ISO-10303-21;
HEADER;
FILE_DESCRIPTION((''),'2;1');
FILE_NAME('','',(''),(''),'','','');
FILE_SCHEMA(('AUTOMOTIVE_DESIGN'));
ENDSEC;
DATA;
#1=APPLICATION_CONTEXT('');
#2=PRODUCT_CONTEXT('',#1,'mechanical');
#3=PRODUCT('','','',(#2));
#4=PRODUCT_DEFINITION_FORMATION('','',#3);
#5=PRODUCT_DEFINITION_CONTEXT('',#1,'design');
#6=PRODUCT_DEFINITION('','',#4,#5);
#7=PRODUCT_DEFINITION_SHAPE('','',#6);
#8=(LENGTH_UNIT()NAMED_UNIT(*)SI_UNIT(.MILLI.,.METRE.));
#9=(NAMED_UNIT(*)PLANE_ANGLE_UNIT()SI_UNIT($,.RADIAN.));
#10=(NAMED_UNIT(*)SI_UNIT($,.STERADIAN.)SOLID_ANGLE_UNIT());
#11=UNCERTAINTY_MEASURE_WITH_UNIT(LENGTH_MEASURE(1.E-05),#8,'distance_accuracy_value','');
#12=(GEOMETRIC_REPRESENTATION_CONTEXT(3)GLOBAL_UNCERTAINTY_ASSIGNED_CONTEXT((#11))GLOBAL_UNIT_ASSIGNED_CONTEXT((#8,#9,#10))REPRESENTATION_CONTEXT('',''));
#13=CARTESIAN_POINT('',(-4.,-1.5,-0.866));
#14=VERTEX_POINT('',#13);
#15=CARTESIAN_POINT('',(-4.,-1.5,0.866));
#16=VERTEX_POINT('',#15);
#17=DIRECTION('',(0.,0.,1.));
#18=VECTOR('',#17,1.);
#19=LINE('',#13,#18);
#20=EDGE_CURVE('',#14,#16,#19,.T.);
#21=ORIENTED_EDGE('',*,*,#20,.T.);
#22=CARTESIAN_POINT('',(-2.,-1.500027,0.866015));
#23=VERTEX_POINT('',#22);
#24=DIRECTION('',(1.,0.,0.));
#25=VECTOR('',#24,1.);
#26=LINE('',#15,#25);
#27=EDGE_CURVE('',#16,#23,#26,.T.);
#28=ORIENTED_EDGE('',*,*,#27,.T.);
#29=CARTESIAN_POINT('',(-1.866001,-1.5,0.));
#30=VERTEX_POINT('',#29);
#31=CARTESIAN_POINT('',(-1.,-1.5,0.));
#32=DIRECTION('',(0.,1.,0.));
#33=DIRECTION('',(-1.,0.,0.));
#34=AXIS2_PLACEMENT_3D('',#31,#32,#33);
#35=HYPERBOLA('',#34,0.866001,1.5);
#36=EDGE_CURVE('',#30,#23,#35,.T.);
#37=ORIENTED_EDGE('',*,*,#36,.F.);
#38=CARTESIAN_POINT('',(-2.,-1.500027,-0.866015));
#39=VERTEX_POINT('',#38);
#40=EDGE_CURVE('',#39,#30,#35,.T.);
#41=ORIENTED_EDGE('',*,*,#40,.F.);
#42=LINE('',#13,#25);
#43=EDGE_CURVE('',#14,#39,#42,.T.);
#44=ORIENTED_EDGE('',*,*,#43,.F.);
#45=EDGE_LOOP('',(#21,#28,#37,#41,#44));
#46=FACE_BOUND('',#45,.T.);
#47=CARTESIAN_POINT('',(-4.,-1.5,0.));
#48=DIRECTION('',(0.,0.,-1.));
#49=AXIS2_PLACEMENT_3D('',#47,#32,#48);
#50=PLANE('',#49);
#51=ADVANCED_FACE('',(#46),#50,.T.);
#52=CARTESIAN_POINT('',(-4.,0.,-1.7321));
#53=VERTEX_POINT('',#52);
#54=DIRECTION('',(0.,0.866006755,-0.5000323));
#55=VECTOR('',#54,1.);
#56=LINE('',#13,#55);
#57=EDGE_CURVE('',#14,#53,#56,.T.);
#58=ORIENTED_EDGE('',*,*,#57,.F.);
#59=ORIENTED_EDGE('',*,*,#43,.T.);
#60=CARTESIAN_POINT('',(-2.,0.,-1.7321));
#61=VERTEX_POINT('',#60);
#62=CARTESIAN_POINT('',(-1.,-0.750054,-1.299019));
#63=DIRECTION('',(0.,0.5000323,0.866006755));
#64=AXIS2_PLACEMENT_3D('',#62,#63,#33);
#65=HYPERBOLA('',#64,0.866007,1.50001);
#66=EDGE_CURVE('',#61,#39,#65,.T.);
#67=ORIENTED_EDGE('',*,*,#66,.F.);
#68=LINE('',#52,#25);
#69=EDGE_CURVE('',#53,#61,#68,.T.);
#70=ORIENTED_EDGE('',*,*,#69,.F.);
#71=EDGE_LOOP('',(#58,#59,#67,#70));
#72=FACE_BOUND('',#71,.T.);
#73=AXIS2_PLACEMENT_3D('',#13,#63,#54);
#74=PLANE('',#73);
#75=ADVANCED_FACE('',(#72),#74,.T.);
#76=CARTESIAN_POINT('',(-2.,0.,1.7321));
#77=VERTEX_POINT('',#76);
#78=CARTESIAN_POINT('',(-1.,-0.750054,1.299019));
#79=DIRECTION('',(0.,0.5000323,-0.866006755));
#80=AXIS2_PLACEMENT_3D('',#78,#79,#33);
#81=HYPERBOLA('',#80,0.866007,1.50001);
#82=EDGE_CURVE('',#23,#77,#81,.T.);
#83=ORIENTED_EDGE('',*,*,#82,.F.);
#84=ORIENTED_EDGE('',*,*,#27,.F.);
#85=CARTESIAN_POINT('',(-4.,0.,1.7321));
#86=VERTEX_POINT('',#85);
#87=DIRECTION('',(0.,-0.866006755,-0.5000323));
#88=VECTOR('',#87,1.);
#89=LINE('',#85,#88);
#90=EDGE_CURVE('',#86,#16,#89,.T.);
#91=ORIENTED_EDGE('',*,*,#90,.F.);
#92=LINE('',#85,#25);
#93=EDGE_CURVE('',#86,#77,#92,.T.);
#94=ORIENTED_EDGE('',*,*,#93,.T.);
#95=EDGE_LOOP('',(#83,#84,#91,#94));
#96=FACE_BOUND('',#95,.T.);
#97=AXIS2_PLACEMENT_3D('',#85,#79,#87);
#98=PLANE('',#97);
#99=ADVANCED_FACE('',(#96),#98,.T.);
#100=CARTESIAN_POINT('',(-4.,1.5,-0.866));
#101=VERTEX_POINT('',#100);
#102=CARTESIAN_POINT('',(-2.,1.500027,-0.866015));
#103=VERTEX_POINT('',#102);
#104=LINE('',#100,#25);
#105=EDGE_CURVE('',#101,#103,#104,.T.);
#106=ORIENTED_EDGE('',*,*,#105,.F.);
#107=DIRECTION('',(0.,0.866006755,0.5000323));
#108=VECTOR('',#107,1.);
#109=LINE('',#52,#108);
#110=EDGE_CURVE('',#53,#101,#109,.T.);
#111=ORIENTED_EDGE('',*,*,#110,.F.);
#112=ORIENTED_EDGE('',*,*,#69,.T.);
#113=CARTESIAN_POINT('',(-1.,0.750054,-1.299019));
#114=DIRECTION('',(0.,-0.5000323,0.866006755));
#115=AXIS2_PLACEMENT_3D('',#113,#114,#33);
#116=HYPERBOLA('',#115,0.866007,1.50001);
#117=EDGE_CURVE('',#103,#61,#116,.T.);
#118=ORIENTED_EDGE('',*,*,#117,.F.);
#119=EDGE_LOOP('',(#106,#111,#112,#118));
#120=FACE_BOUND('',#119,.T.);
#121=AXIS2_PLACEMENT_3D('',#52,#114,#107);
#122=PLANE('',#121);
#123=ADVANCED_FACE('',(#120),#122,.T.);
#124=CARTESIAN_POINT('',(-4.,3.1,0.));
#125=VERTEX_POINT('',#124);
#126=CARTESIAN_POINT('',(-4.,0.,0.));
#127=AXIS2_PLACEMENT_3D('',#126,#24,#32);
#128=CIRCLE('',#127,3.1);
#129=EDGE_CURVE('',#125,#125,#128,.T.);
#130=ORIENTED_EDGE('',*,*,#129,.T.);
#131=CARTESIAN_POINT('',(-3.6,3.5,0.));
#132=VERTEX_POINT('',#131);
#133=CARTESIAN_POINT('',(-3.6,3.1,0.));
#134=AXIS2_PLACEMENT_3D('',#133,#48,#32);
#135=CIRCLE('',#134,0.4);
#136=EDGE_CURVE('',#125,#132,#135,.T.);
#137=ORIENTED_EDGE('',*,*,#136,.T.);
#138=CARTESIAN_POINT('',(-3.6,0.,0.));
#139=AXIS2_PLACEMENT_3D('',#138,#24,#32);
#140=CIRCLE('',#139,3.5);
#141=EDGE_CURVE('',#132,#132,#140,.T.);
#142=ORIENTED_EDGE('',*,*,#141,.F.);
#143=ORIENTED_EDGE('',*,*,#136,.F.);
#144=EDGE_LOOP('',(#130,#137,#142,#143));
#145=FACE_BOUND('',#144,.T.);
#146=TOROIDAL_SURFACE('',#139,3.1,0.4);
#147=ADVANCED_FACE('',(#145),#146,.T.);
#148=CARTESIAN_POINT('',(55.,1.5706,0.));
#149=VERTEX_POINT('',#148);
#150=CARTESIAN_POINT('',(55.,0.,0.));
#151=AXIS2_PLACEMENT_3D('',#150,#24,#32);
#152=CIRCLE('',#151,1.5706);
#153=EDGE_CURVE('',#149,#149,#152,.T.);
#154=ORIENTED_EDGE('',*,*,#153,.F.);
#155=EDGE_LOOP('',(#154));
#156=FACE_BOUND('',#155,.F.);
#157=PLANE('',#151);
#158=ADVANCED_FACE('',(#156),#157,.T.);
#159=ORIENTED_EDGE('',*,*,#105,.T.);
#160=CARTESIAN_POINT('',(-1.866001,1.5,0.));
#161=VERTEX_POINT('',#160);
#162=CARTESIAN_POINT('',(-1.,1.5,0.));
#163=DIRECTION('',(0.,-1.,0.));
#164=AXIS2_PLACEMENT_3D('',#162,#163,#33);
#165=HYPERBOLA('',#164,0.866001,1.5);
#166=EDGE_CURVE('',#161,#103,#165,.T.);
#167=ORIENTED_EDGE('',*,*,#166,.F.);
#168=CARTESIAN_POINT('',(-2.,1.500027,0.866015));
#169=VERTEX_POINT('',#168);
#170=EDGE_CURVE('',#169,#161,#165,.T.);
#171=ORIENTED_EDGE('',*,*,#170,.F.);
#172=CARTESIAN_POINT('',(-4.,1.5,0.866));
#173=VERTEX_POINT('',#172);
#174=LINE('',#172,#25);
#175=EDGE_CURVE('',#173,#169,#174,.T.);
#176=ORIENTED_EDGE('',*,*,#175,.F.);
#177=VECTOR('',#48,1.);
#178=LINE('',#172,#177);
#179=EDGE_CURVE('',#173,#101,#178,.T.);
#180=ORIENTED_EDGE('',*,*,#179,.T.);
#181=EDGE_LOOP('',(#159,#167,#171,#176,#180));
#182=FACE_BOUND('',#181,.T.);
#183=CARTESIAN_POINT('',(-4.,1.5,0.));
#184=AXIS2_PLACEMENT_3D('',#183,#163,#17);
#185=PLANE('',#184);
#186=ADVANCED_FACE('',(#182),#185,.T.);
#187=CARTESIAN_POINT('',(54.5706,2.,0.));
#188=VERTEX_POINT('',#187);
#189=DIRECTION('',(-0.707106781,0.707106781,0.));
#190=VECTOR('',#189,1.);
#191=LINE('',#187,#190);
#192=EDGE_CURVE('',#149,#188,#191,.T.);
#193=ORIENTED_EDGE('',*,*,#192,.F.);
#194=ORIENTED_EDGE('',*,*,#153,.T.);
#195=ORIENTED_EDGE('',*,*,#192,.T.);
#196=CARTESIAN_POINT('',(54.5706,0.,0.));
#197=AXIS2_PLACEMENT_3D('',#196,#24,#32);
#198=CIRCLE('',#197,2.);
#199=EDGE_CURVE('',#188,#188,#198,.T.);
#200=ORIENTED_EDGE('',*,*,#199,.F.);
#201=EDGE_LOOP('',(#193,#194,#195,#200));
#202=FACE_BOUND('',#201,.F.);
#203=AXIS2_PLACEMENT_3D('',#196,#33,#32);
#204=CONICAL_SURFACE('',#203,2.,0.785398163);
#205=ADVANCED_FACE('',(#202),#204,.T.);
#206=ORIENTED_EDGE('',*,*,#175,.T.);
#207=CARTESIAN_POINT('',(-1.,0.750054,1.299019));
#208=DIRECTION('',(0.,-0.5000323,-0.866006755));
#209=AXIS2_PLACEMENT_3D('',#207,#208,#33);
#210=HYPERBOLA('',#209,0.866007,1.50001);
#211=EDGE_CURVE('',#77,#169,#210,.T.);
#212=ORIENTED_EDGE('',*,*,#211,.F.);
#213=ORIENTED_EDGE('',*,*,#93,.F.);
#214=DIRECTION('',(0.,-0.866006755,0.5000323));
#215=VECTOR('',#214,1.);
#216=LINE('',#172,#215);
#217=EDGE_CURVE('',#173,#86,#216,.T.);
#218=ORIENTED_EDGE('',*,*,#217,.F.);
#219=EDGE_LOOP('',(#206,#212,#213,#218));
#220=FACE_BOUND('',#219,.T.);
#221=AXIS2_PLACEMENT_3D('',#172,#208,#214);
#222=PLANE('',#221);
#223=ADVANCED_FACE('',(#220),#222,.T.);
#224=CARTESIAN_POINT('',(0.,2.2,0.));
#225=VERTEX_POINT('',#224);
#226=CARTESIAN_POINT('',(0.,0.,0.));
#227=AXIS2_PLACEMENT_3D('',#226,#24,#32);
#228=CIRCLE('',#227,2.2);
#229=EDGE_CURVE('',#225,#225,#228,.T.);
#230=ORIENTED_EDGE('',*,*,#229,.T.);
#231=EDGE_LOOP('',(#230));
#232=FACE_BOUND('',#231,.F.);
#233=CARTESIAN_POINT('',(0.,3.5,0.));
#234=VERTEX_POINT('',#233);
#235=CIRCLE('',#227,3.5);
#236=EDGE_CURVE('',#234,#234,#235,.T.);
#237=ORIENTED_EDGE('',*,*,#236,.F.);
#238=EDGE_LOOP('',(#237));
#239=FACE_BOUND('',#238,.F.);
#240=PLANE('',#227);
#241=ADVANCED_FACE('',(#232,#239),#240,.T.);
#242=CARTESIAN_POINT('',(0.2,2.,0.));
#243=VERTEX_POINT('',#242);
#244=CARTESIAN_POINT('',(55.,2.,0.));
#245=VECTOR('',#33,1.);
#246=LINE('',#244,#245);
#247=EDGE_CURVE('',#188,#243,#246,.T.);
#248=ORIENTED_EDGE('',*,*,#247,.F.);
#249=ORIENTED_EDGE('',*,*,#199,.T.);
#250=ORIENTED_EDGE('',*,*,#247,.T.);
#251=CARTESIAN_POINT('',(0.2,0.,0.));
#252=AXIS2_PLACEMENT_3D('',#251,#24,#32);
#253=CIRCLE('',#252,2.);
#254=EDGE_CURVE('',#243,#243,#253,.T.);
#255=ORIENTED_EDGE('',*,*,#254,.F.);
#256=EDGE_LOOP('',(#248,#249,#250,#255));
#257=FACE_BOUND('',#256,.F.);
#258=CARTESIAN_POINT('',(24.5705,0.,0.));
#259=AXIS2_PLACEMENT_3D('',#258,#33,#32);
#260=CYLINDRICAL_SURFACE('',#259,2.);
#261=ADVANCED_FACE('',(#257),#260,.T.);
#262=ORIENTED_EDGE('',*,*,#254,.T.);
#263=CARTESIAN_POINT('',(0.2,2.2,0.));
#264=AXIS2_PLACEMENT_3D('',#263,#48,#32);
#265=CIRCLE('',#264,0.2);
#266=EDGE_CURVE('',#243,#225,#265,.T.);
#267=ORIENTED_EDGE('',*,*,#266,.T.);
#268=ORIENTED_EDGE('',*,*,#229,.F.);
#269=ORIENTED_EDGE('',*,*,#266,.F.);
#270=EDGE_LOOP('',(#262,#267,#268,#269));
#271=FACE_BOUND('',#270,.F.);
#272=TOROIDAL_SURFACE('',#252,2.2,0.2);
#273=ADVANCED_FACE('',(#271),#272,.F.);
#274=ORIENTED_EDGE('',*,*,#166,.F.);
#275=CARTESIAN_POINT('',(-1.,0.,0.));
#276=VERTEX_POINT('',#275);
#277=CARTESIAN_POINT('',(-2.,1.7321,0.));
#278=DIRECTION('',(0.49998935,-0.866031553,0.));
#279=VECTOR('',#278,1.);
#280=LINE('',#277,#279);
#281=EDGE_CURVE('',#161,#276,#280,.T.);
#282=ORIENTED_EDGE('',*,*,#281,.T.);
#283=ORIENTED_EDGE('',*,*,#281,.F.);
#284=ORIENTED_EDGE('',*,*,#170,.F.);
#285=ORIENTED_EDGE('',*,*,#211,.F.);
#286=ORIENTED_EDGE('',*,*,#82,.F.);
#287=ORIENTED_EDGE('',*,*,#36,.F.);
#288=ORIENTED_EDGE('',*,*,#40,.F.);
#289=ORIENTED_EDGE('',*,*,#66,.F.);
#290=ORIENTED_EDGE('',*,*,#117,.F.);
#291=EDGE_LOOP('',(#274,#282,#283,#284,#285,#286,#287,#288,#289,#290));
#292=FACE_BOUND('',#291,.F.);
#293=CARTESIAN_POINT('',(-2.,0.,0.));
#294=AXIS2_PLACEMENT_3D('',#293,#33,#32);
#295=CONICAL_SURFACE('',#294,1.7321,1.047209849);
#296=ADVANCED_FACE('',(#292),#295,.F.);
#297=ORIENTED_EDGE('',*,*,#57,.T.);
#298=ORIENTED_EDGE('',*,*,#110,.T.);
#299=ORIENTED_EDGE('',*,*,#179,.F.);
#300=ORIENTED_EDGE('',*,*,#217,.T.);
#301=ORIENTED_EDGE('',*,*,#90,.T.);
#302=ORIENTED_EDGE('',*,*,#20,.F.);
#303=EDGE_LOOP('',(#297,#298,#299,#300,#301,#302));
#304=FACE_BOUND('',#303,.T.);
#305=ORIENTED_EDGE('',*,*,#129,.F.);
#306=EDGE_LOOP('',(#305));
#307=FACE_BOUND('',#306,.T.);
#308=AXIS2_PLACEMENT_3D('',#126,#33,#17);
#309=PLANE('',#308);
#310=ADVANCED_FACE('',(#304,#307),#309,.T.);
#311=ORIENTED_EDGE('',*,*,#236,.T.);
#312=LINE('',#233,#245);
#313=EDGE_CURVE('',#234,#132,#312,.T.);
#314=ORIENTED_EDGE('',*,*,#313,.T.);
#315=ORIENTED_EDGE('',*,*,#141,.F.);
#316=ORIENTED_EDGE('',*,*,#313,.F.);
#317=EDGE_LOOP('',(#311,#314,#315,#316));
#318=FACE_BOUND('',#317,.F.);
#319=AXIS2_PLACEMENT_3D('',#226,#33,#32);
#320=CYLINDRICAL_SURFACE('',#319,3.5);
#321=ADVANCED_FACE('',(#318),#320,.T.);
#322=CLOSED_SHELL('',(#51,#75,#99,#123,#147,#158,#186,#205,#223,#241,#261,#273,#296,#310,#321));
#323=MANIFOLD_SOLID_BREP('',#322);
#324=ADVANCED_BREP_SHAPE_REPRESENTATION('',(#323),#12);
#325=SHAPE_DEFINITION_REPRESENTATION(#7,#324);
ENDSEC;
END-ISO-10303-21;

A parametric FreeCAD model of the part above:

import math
import FreeCAD as App
import Part
import Sketcher


def edges_at(feature, points):
    """Names of the edges that pass closest to the given points."""
    edges = feature.Shape.Edges
    near = lambda p: min(range(len(edges)), key=lambda i: edges[i].distToShape(Part.Vertex(*p))[0])
    return sorted({f"Edge{near(p) + 1}" for p in points})

doc = App.newDocument("Part")
body = doc.addObject("PartDesign::Body", "Body")

# Sketch on XY plane
sketch1 = body.newObject("Sketcher::SketchObject", "Sketch")
sketch1.AttachmentSupport = (doc.getObject("XY_Plane"), [""])
sketch1.MapMode = "FlatFace"
sketch1.addGeometry(Part.LineSegment(App.Vector(-2, 1.7, 0), App.Vector(-1, 0, 0)), False)
sketch1.addGeometry(Part.LineSegment(App.Vector(-1, 0, 0), App.Vector(55, 0, 0)), False)
sketch1.addGeometry(Part.LineSegment(App.Vector(55, 0, 0), App.Vector(55, 2, 0)), False)
sketch1.addGeometry(Part.LineSegment(App.Vector(55, 2, 0), App.Vector(0, 2, 0)), False)
sketch1.addGeometry(Part.LineSegment(App.Vector(0, 2, 0), App.Vector(0, 3.5, 0)), False)
sketch1.addGeometry(Part.LineSegment(App.Vector(0, 3.5, 0), App.Vector(-4, 3.5, 0)), False)
sketch1.addGeometry(Part.LineSegment(App.Vector(-4, 3.5, 0), App.Vector(-4, 1.7, 0)), False)
sketch1.addGeometry(Part.LineSegment(App.Vector(-4, 1.7, 0), App.Vector(-2, 1.7, 0)), False)
sketch1.addConstraint(Sketcher.Constraint("Coincident", 0, 2, 1, 1))
sketch1.addConstraint(Sketcher.Constraint("Coincident", 1, 2, 2, 1))
sketch1.addConstraint(Sketcher.Constraint("Coincident", 2, 2, 3, 1))
sketch1.addConstraint(Sketcher.Constraint("Coincident", 3, 2, 4, 1))
sketch1.addConstraint(Sketcher.Constraint("Coincident", 4, 2, 5, 1))
sketch1.addConstraint(Sketcher.Constraint("Coincident", 5, 2, 6, 1))
sketch1.addConstraint(Sketcher.Constraint("Coincident", 6, 2, 7, 1))
sketch1.addConstraint(Sketcher.Constraint("Coincident", 7, 2, 0, 1))
sketch1.addConstraint(Sketcher.Constraint("Horizontal", 1))
sketch1.addConstraint(Sketcher.Constraint("Vertical", 2))
sketch1.addConstraint(Sketcher.Constraint("Horizontal", 3))
sketch1.addConstraint(Sketcher.Constraint("Vertical", 4))
sketch1.addConstraint(Sketcher.Constraint("Horizontal", 5))
sketch1.addConstraint(Sketcher.Constraint("Vertical", 6))
sketch1.addConstraint(Sketcher.Constraint("Horizontal", 7))
sketch1.addConstraint(Sketcher.Constraint("PointOnObject", 0, 2, -1))
sketch1.addConstraint(Sketcher.Constraint("PointOnObject", 3, 2, -2))
sketch1.addConstraint(Sketcher.Constraint("Equal", 7, 2))
sketch1.addConstraint(Sketcher.Constraint("DistanceX", 3, 2, 3, 1, 55.0))
sketch1.addConstraint(Sketcher.Constraint("DistanceX", 5, 2, 5, 1, 4.0))
sketch1.addConstraint(Sketcher.Constraint("DistanceX", 7, 1, 7, 2, 2.0))
sketch1.addConstraint(Sketcher.Constraint("Distance", 0, 2.0))
sketch1.addConstraint(Sketcher.Constraint("DistanceX", 1, 1, 1, 2, 56.0))
sketch1.addConstraint(Sketcher.Constraint("DistanceY", 4, 1, 4, 2, 1.5))
revolution = body.newObject("PartDesign::Revolution", "Revolution")
revolution.Profile = sketch1
revolution.ReferenceAxis = (sketch1, ["H_Axis"])
revolution.Angle = 360

# Sketch on YZ plane
sketch2 = body.newObject("Sketcher::SketchObject", "Sketch001")
sketch2.AttachmentSupport = (doc.getObject("YZ_Plane"), [""])
sketch2.MapMode = "FlatFace"
sketch2.AttachmentOffset = App.Placement(App.Vector(0, 0, -4), App.Rotation())
sketch2.addGeometry(Part.LineSegment(App.Vector(1.5, 0.9, 0), App.Vector(0, 1.7, 0)), False)
sketch2.addGeometry(Part.ArcOfCircle(Part.Circle(App.Vector(0, 0, 0), App.Vector(0, 0, 1), 1.7), math.radians(30), math.radians(90)), False)
sketch2.addGeometry(Part.ArcOfCircle(Part.Circle(App.Vector(0, 0, 0), App.Vector(0, 0, 1), 1.7), math.radians(90), math.radians(150)), False)
sketch2.addGeometry(Part.LineSegment(App.Vector(0, 1.7, 0), App.Vector(-1.5, 0.9, 0)), False)
sketch2.addGeometry(Part.ArcOfCircle(Part.Circle(App.Vector(0, 0, 0), App.Vector(0, 0, 1), 1.7), math.radians(-30), math.radians(30)), False)
sketch2.addGeometry(Part.LineSegment(App.Vector(1.5, 0.9, 0), App.Vector(1.5, -0.9, 0)), False)
sketch2.addGeometry(Part.LineSegment(App.Vector(-1.5, 0.9, 0), App.Vector(-1.5, -0.9, 0)), False)
sketch2.addGeometry(Part.ArcOfCircle(Part.Circle(App.Vector(0, 0, 0), App.Vector(0, 0, 1), 1.7), math.radians(150), math.radians(210)), False)
sketch2.addGeometry(Part.LineSegment(App.Vector(-1.5, -0.9, 0), App.Vector(0, -1.7, 0)), False)
sketch2.addGeometry(Part.ArcOfCircle(Part.Circle(App.Vector(0, 0, 0), App.Vector(0, 0, 1), 1.7), math.radians(-150), math.radians(-90)), False)
sketch2.addGeometry(Part.ArcOfCircle(Part.Circle(App.Vector(0, 0, 0), App.Vector(0, 0, 1), 1.7), math.radians(-90), math.radians(-30)), False)
sketch2.addGeometry(Part.LineSegment(App.Vector(0, -1.7, 0), App.Vector(1.5, -0.9, 0)), False)
sketch2.addConstraint(Sketcher.Constraint("Coincident", 0, 1, 1, 1))
sketch2.addConstraint(Sketcher.Constraint("Coincident", 1, 2, 0, 2))
sketch2.addConstraint(Sketcher.Constraint("Coincident", 2, 1, 3, 1))
sketch2.addConstraint(Sketcher.Constraint("Coincident", 3, 2, 2, 2))
sketch2.addConstraint(Sketcher.Constraint("Coincident", 4, 1, 5, 2))
sketch2.addConstraint(Sketcher.Constraint("Coincident", 5, 1, 4, 2))
sketch2.addConstraint(Sketcher.Constraint("Coincident", 6, 1, 7, 1))
sketch2.addConstraint(Sketcher.Constraint("Coincident", 7, 2, 6, 2))
sketch2.addConstraint(Sketcher.Constraint("Coincident", 8, 1, 9, 1))
sketch2.addConstraint(Sketcher.Constraint("Coincident", 9, 2, 8, 2))
sketch2.addConstraint(Sketcher.Constraint("Coincident", 10, 1, 11, 1))
sketch2.addConstraint(Sketcher.Constraint("Coincident", 11, 2, 10, 2))
sketch2.addConstraint(Sketcher.Constraint("Vertical", 5))
sketch2.addConstraint(Sketcher.Constraint("Vertical", 6))
sketch2.addConstraint(Sketcher.Constraint("Coincident", 1, 3, -1, 1))
sketch2.addConstraint(Sketcher.Constraint("Coincident", 2, 3, -1, 1))
sketch2.addConstraint(Sketcher.Constraint("Coincident", 4, 3, -1, 1))
sketch2.addConstraint(Sketcher.Constraint("Coincident", 7, 3, -1, 1))
sketch2.addConstraint(Sketcher.Constraint("Coincident", 9, 3, -1, 1))
sketch2.addConstraint(Sketcher.Constraint("Coincident", 10, 3, -1, 1))
sketch2.addConstraint(Sketcher.Constraint("Coincident", 2, 1, 1, 2))
sketch2.addConstraint(Sketcher.Constraint("Coincident", 5, 1, 0, 1))
sketch2.addConstraint(Sketcher.Constraint("Coincident", 6, 1, 3, 2))
sketch2.addConstraint(Sketcher.Constraint("Coincident", 8, 1, 7, 2))
sketch2.addConstraint(Sketcher.Constraint("Coincident", 10, 1, 9, 2))
sketch2.addConstraint(Sketcher.Constraint("PointOnObject", 1, 2, -2))
sketch2.addConstraint(Sketcher.Constraint("PointOnObject", 9, 2, -2))
sketch2.addConstraint(Sketcher.Constraint("Parallel", 0, 8))
sketch2.addConstraint(Sketcher.Constraint("Parallel", 3, 11))
sketch2.addConstraint(Sketcher.Constraint("Radius", 1, 1.732))
sketch2.addConstraint(Sketcher.Constraint("DistanceX", -1, 1, 0, 1, 1.5))
pad1 = body.newObject("PartDesign::Pad", "Pad")
pad1.Profile = sketch2
pad1.Type = "UpToFirst"
doc.recompute()

fillet = body.newObject("PartDesign::Fillet", "Fillet")
fillet.Base = (pad1, edges_at(pad1, [(-4, -3.5, 0)]))
fillet.Radius = 0.4
doc.recompute()

chamfer = body.newObject("PartDesign::Chamfer", "Chamfer")
chamfer.Base = (fillet, edges_at(fillet, [(55, -2, 0)]))
chamfer.ChamferType = "Two distances"
chamfer.Size = 0.4294
chamfer.Size2 = 0.4294
doc.recompute()

fillet2 = body.newObject("PartDesign::Fillet", "Fillet001")
fillet2.Base = (chamfer, edges_at(chamfer, [(0, -2, 0)]))
fillet2.Radius = 0.2

doc.recompute()
